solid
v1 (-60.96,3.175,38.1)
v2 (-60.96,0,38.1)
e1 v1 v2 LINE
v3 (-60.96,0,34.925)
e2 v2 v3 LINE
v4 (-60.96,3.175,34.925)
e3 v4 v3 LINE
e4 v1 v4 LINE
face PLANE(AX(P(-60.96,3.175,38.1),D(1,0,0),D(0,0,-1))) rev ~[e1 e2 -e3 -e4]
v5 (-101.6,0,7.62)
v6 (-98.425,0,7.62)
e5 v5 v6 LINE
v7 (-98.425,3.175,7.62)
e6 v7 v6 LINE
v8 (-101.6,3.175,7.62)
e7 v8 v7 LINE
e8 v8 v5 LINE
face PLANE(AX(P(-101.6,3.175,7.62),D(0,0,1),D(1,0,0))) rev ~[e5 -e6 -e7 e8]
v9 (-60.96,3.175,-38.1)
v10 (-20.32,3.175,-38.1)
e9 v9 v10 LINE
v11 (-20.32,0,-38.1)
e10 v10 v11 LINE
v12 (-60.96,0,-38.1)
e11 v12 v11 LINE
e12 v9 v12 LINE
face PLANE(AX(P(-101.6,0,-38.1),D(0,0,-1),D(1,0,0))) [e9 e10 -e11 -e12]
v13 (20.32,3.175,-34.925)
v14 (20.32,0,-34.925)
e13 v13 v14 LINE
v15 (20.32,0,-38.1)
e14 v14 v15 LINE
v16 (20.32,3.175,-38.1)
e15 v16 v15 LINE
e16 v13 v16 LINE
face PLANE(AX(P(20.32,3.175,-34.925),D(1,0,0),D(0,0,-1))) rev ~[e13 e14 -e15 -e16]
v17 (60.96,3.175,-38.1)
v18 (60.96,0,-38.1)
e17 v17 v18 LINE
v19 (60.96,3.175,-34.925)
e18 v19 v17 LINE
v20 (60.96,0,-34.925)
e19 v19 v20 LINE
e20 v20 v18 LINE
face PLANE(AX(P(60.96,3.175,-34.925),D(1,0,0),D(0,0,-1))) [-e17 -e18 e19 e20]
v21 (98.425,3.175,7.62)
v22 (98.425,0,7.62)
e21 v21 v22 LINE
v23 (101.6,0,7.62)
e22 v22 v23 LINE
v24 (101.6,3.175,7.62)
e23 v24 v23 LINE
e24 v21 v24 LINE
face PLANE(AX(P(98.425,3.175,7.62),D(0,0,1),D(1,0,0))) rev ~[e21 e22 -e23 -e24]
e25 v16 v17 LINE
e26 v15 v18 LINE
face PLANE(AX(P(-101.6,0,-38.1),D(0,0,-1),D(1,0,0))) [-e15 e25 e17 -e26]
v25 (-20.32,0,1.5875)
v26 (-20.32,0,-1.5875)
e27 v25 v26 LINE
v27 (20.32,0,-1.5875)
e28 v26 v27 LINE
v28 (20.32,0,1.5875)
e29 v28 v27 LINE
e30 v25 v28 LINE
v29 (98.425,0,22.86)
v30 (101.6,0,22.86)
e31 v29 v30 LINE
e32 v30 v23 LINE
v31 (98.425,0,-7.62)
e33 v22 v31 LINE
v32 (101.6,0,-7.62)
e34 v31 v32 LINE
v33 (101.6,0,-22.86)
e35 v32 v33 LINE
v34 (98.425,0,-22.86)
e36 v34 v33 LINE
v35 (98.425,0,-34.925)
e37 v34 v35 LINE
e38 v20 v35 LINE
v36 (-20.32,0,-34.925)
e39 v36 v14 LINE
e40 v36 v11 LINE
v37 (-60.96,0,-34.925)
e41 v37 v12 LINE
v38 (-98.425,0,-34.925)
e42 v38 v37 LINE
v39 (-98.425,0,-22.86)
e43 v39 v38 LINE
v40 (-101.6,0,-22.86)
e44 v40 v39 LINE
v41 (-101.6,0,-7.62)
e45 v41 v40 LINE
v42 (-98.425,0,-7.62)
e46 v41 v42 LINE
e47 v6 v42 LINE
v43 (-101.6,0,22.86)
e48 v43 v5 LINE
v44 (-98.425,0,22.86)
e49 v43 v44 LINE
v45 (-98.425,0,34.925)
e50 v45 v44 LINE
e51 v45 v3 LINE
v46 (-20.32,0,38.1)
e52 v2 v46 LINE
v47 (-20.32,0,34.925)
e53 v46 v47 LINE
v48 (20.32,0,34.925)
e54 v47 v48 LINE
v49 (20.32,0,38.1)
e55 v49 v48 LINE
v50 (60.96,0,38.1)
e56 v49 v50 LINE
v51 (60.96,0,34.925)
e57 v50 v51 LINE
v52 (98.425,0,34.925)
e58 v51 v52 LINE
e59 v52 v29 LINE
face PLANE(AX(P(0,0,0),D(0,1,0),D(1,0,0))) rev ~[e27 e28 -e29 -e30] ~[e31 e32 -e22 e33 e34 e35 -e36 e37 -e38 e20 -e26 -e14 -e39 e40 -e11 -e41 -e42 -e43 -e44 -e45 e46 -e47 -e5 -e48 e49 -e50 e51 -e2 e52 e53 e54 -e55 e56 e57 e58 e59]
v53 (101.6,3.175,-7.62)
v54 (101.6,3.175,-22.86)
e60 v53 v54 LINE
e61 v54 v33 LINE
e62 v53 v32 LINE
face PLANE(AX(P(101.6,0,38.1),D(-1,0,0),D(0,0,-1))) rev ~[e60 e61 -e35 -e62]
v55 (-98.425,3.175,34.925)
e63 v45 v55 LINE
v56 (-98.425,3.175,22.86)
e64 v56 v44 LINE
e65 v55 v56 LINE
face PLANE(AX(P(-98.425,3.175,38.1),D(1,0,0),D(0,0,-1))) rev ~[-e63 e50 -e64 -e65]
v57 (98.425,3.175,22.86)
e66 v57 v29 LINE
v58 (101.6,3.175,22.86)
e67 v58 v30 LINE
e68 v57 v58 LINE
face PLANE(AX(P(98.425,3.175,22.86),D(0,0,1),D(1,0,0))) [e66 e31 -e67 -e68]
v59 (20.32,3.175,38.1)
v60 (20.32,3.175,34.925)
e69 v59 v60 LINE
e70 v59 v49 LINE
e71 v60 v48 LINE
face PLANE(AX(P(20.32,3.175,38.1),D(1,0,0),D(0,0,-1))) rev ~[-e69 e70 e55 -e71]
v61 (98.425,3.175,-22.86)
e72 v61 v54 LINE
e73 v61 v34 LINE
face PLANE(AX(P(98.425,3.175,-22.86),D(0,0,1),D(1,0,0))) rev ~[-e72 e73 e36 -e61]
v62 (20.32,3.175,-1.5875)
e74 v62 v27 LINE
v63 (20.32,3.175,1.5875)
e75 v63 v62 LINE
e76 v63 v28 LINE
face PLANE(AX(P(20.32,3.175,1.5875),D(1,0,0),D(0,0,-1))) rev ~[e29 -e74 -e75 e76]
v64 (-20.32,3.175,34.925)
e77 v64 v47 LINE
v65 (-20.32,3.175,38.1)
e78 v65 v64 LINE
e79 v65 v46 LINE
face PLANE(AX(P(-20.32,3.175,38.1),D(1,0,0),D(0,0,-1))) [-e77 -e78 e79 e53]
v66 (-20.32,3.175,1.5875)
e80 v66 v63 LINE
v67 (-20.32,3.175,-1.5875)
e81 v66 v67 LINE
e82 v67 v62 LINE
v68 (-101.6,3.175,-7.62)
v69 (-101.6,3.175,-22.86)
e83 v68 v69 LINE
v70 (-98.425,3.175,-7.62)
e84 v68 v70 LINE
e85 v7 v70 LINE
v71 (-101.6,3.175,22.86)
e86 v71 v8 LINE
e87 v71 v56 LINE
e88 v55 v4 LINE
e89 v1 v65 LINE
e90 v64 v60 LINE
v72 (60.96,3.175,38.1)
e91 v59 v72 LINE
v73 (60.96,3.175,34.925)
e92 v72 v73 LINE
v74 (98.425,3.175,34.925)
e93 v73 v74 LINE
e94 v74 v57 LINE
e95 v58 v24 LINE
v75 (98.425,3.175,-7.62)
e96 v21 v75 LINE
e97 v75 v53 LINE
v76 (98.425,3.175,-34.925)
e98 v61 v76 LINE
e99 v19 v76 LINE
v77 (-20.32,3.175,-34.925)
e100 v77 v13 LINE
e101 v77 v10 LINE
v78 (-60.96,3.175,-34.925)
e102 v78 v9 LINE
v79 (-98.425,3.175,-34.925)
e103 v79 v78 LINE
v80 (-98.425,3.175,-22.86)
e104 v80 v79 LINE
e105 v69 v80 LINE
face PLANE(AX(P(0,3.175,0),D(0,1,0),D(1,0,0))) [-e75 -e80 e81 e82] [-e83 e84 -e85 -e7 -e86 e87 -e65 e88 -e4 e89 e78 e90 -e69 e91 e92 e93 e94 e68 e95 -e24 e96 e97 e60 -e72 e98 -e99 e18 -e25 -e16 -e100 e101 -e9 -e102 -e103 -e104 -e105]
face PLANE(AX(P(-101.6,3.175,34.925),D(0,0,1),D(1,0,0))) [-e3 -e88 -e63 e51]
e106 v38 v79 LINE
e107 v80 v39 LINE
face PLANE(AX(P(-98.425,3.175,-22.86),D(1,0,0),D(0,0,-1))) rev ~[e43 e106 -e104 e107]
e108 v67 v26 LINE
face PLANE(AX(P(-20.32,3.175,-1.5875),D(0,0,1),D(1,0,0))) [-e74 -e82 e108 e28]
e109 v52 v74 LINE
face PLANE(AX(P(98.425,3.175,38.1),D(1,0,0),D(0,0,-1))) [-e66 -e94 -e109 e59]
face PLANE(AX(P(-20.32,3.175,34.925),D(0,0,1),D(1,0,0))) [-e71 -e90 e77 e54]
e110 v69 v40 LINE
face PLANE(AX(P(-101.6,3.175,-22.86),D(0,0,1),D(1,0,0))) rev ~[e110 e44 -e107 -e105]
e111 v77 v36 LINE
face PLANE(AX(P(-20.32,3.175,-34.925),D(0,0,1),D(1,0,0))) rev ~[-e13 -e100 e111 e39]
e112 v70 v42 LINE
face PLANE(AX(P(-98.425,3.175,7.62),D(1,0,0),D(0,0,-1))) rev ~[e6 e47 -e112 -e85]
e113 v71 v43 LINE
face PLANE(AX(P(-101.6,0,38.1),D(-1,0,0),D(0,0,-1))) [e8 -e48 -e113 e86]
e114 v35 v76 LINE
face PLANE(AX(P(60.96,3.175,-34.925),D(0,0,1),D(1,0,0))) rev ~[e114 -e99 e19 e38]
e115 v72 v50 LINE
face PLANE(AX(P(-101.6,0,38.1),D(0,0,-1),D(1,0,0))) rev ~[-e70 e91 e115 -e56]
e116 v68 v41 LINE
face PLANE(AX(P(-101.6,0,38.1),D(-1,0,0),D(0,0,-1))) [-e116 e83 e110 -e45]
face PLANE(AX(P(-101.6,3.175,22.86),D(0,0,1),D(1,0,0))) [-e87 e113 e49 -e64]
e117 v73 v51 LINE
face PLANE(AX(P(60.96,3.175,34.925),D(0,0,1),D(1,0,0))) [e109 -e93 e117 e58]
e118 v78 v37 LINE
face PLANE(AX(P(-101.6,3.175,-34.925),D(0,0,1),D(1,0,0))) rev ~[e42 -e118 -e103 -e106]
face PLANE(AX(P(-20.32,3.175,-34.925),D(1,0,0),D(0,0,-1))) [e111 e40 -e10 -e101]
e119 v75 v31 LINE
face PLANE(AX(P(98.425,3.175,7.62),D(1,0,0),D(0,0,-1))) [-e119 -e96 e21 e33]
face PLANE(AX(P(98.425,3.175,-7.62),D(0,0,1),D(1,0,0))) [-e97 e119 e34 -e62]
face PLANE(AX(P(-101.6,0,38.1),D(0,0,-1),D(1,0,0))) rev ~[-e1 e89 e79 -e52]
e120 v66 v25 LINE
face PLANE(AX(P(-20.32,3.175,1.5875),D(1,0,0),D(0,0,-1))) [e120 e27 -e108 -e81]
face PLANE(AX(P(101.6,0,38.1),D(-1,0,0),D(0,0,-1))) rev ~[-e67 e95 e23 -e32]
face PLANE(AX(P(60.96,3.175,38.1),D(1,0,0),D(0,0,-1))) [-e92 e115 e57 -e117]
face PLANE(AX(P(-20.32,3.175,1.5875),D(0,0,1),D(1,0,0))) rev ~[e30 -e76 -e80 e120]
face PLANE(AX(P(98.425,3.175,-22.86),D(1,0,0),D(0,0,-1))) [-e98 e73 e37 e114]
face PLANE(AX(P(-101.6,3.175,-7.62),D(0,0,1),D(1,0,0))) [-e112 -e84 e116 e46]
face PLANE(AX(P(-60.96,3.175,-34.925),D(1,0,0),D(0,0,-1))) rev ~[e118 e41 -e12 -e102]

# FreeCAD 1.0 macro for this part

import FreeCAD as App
import Part
import Sketcher
from FreeCAD import Vector
Q = App.Units.Quantity


def add_polygon(sketch, points):
    """Adds a closed chain of lines whose ends are joined by coincident constraints."""
    first, n = sketch.GeometryCount, len(points)
    for a, b in zip(points, points[1:] + points[:1]):
        sketch.addGeometry(Part.LineSegment(App.Vector(*a, 0), App.Vector(*b, 0)), False)
    for i in range(n):
        sketch.addConstraint(Sketcher.Constraint("Coincident", first + i, 2, first + (i + 1) % n, 1))

doc = App.newDocument("Part")
params = doc.addObject("Spreadsheet::Sheet", "Params")
for row, (alias, value) in enumerate([
    ("sketch1_width", "8 in"),
    ("sketch1_height", "3 in"),
    ("pad1_length", "0.125 in"),
    ("sketch2_width", "1.6 in"),
    ("sketch2_height", "0.125 in"),
    ("pocket1_length", "0.125 in"),
    ("linearpattern_pitch", "3.2 in"),
    ("sketch3_height", "0.6 in"),
    ("sketch3_width", "0.125 in"),
    ("pocket2_length", "0.125 in"),
    ("linearpattern2_pitch", "1.2 in"),
    ("sketch4_width", "1.6 in"),
    ("sketch4_height", "0.125 in"),
    ("pocket3_length", "0.125 in"),
], start=1):
    params.set(f"A{row}", alias)
    params.set(f"B{row}", "=" + value)
    params.setAlias(f"B{row}", alias)

body = doc.addObject("PartDesign::Body", "Body")

# Sketch on XZ plane
sketch1 = body.newObject("Sketcher::SketchObject", "Sketch")
sketch1.AttachmentSupport = (doc.getObject("XZ_Plane"), [""])
sketch1.MapMode = "FlatFace"
add_polygon(sketch1, [(-101.6, -38.1), (-101.6, 38.1), (101.6, 38.1), (101.6, -38.1)])  # lines 0-3
sketch1.addConstraint(Sketcher.Constraint("Vertical", 0))
sketch1.addConstraint(Sketcher.Constraint("Horizontal", 1))
sketch1.addConstraint(Sketcher.Constraint("Vertical", 2))
sketch1.addConstraint(Sketcher.Constraint("Horizontal", 3))
sketch1.addConstraint(Sketcher.Constraint("Symmetric", 0, 2, 2, 2, -1, 1))
sketch1.addConstraint(Sketcher.Constraint("DistanceX", 1, 1, 1, 2, Q("8 in")))
sketch1.addConstraint(Sketcher.Constraint("DistanceY", 0, 1, 0, 2, Q("3 in")))
sketch1.setExpression("Constraints[9]", "Params.sketch1_width")
sketch1.setExpression("Constraints[10]", "Params.sketch1_height")
pad1 = body.newObject("PartDesign::Pad", "Pad")
pad1.Profile = sketch1
pad1.setExpression("Length", "Params.pad1_length")
pad1.Reversed = True

# Sketch on XZ plane
sketch2 = body.newObject("Sketcher::SketchObject", "Sketch001")
sketch2.AttachmentSupport = (doc.getObject("XZ_Plane"), [""])
sketch2.MapMode = "FlatFace"
sketch2.AttachmentOffset = App.Placement(Vector(0, 0, -0.125 * 25.4), App.Rotation())
add_polygon(sketch2, [(-101.6, -38.1), (-101.6, -34.925), (-60.96, -34.925), (-60.96, -38.1)])  # lines 0-3
add_polygon(sketch2, [(-101.6, 34.925), (-101.6, 38.1), (-60.96, 38.1), (-60.96, 34.925)])  # lines 4-7
sketch2.addConstraint(Sketcher.Constraint("Vertical", 0))
sketch2.addConstraint(Sketcher.Constraint("Horizontal", 1))
sketch2.addConstraint(Sketcher.Constraint("Vertical", 2))
sketch2.addConstraint(Sketcher.Constraint("Horizontal", 3))
sketch2.addConstraint(Sketcher.Constraint("Vertical", 4))
sketch2.addConstraint(Sketcher.Constraint("Horizontal", 5))
sketch2.addConstraint(Sketcher.Constraint("Vertical", 6))
sketch2.addConstraint(Sketcher.Constraint("Horizontal", 7))
sketch2.addConstraint(Sketcher.Constraint("Symmetric", 3, 2, 4, 2, -1))
sketch2.addConstraint(Sketcher.Constraint("Symmetric", 1, 2, 6, 2, -1))
sketch2.addConstraint(Sketcher.Constraint("DistanceX", 1, 1, 1, 2, Q("1.6 in")))
sketch2.addConstraint(Sketcher.Constraint("DistanceX", 0, 2, -1, 1, Q("4 in")))
sketch2.addConstraint(Sketcher.Constraint("DistanceY", 3, 2, 4, 2, Q("3 in")))
sketch2.addConstraint(Sketcher.Constraint("DistanceY", 0, 1, 0, 2, Q("0.125 in")))
sketch2.setExpression("Constraints[18]", "Params.sketch2_width")
sketch2.setExpression("Constraints[21]", "Params.sketch2_height")
pocket1 = body.newObject("PartDesign::Pocket", "Pocket")
pocket1.Profile = sketch2
pocket1.setExpression("Length", "Params.pocket1_length")
pocket1.Reversed = True
doc.recompute()

linearpattern = body.newObject("PartDesign::LinearPattern", "LinearPattern")
linearpattern.Originals = [pocket1]
linearpattern.Direction = (doc.getObject("X_Axis"), [""])
linearpattern.Mode = "offset"
linearpattern.setExpression("Offset", "Params.linearpattern_pitch")
linearpattern.Occurrences = 3
body.Tip = linearpattern

# Sketch on XZ plane
sketch3 = body.newObject("Sketcher::SketchObject", "Sketch002")
sketch3.AttachmentSupport = (doc.getObject("XZ_Plane"), [""])
sketch3.MapMode = "FlatFace"
sketch3.AttachmentOffset = App.Placement(Vector(0, 0, -0.125 * 25.4), App.Rotation())
add_polygon(sketch3, [(98.425, -38.1), (98.425, -22.86), (101.6, -22.86), (101.6, -38.1)])  # lines 0-3
add_polygon(sketch3, [(-101.6, -38.1), (-101.6, -22.86), (-98.425, -22.86), (-98.425, -38.1)])  # lines 4-7
sketch3.addConstraint(Sketcher.Constraint("Vertical", 0))
sketch3.addConstraint(Sketcher.Constraint("Horizontal", 1))
sketch3.addConstraint(Sketcher.Constraint("Vertical", 2))
sketch3.addConstraint(Sketcher.Constraint("Horizontal", 3))
sketch3.addConstraint(Sketcher.Constraint("Vertical", 4))
sketch3.addConstraint(Sketcher.Constraint("Horizontal", 5))
sketch3.addConstraint(Sketcher.Constraint("Vertical", 6))
sketch3.addConstraint(Sketcher.Constraint("Horizontal", 7))
sketch3.addConstraint(Sketcher.Constraint("Symmetric", 1, 2, 4, 2, -2))
sketch3.addConstraint(Sketcher.Constraint("Symmetric", 3, 2, 6, 2, -2))
sketch3.addConstraint(Sketcher.Constraint("DistanceY", 0, 1, 0, 2, Q("0.6 in")))
sketch3.addConstraint(Sketcher.Constraint("DistanceX", -1, 1, 1, 2, Q("4 in")))
sketch3.addConstraint(Sketcher.Constraint("DistanceY", 0, 2, -1, 1, Q("0.9 in")))
sketch3.addConstraint(Sketcher.Constraint("DistanceX", 1, 1, 1, 2, Q("0.125 in")))
sketch3.setExpression("Constraints[18]", "Params.sketch3_height")
sketch3.setExpression("Constraints[21]", "Params.sketch3_width")
pocket2 = body.newObject("PartDesign::Pocket", "Pocket001")
pocket2.Profile = sketch3
pocket2.setExpression("Length", "Params.pocket2_length")
pocket2.Reversed = True
doc.recompute()

linearpattern2 = body.newObject("PartDesign::LinearPattern", "LinearPattern001")
linearpattern2.Originals = [pocket2]
linearpattern2.Direction = (doc.getObject("Z_Axis"), [""])
linearpattern2.Mode = "offset"
linearpattern2.setExpression("Offset", "Params.linearpattern2_pitch")
linearpattern2.Occurrences = 3
body.Tip = linearpattern2

# Sketch on XZ plane
sketch4 = body.newObject("Sketcher::SketchObject", "Sketch003")
sketch4.AttachmentSupport = (doc.getObject("XZ_Plane"), [""])
sketch4.MapMode = "FlatFace"
sketch4.AttachmentOffset = App.Placement(Vector(0, 0, -0.125 * 25.4), App.Rotation())
add_polygon(sketch4, [(-20.32, -1.5875), (-20.32, 1.5875), (20.32, 1.5875), (20.32, -1.5875)])  # lines 0-3
sketch4.addConstraint(Sketcher.Constraint("Vertical", 0))
sketch4.addConstraint(Sketcher.Constraint("Horizontal", 1))
sketch4.addConstraint(Sketcher.Constraint("Vertical", 2))
sketch4.addConstraint(Sketcher.Constraint("Horizontal", 3))
sketch4.addConstraint(Sketcher.Constraint("Symmetric", 0, 2, 2, 2, -1, 1))
sketch4.addConstraint(Sketcher.Constraint("DistanceX", 1, 1, 1, 2, Q("1.6 in")))
sketch4.addConstraint(Sketcher.Constraint("DistanceY", 0, 1, 0, 2, Q("0.125 in")))
sketch4.setExpression("Constraints[9]", "Params.sketch4_width")
sketch4.setExpression("Constraints[10]", "Params.sketch4_height")
pocket3 = body.newObject("PartDesign::Pocket", "Pocket002")
pocket3.Profile = sketch4
pocket3.setExpression("Length", "Params.pocket3_length")
pocket3.Reversed = True

doc.recompute()
